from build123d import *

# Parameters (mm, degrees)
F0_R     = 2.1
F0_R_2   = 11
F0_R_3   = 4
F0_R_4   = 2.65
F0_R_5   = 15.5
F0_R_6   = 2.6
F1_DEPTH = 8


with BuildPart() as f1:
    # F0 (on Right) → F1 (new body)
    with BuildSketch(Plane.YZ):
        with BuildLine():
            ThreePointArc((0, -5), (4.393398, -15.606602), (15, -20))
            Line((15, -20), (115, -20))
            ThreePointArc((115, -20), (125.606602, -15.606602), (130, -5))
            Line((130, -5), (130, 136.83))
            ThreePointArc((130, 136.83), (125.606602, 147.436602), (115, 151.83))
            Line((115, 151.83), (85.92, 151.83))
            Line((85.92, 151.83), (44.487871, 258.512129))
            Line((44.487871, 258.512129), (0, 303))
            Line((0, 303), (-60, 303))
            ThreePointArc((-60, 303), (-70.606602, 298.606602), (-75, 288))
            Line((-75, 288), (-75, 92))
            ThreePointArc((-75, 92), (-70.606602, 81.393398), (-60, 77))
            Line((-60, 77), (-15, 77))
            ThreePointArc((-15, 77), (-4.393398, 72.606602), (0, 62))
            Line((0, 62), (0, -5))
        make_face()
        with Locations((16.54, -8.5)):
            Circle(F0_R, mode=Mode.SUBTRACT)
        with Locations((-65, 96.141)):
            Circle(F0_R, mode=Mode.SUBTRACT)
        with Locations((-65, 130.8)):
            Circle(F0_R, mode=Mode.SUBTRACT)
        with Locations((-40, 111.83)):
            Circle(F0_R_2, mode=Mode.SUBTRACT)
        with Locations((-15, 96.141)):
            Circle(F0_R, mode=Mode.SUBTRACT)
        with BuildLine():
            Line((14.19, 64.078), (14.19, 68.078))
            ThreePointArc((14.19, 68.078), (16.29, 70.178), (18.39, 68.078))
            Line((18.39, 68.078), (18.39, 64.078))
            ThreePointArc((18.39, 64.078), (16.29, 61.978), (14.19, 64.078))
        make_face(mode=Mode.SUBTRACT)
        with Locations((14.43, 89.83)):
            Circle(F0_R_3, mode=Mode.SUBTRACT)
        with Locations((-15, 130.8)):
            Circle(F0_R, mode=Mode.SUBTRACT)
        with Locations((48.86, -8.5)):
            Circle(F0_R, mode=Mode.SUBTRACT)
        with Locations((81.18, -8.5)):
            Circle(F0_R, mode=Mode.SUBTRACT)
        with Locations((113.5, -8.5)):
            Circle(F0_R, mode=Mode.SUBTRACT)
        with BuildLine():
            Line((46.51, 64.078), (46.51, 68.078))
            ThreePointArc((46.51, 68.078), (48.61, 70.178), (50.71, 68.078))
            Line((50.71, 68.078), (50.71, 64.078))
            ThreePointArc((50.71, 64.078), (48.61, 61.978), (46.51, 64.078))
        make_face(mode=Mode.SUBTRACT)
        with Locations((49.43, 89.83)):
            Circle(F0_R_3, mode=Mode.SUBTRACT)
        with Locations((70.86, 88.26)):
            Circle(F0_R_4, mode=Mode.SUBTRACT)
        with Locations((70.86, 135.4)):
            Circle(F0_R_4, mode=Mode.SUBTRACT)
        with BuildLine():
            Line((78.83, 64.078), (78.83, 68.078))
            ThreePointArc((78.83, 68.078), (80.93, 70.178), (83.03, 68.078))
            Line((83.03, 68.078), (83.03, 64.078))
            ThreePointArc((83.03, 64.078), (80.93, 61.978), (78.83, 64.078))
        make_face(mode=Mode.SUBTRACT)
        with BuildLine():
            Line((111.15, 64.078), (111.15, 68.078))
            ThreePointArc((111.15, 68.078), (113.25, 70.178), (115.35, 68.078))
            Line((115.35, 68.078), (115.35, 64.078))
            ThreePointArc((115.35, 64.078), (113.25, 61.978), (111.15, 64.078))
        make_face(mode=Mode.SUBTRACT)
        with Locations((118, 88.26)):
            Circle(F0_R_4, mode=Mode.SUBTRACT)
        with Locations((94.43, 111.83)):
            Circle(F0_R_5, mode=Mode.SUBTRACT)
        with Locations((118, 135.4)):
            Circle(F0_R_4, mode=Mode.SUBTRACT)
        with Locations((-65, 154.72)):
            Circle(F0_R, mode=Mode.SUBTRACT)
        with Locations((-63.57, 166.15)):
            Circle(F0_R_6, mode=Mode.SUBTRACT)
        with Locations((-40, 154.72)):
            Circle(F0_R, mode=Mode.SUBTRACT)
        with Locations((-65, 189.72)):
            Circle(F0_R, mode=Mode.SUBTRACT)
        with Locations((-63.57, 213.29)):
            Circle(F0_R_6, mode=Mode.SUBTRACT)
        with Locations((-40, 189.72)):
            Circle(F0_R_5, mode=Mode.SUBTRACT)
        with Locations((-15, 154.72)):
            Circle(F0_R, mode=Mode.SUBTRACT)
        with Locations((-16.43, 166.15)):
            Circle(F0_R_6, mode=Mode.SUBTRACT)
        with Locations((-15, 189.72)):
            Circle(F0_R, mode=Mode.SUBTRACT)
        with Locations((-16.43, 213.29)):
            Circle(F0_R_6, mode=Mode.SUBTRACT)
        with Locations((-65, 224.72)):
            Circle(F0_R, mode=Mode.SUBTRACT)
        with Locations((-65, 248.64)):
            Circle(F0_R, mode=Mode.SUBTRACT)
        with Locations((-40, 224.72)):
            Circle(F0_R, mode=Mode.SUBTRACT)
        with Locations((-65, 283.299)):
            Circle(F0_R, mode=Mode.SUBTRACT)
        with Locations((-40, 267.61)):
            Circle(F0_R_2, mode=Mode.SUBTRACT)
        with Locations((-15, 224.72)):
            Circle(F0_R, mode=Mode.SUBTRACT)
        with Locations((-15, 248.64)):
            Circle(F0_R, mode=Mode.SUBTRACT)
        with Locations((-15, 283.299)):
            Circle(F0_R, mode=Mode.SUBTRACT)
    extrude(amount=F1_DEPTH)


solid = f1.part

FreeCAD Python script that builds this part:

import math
import FreeCAD as App
import Part
import Sketcher

V = App.Vector
Q = App.Units.Quantity

doc = App.newDocument("Part")
body = doc.addObject("PartDesign::Body", "Body")

sketch1 = body.newObject("Sketcher::SketchObject", "Sketch")
sketch1.AttachmentSupport = (doc.getObject("YZ_Plane"), [""])
sketch1.MapMode = "FlatFace"
sketch1.addGeometry(Part.ArcOfCircle(Part.Circle(V(15, -5, 0), V(0, 0, 1), 15), math.radians(180), math.radians(270)), False)
sketch1.addGeometry(Part.LineSegment(V(15, -20, 0), V(115, -20, 0)), False)
sketch1.addGeometry(Part.ArcOfCircle(Part.Circle(V(115, -5, 0), V(0, 0, 1), 15), math.radians(-90), math.radians(0)), False)
sketch1.addGeometry(Part.LineSegment(V(130, -5, 0), V(130, 136.8, 0)), False)
sketch1.addGeometry(Part.ArcOfCircle(Part.Circle(V(115, 136.8, 0), V(0, 0, 1), 15), math.radians(0), math.radians(90)), False)
sketch1.addGeometry(Part.LineSegment(V(115, 151.8, 0), V(85.9, 151.8, 0)), False)
sketch1.addGeometry(Part.LineSegment(V(85.9, 151.8, 0), V(44.5, 258.5, 0)), False)
sketch1.addGeometry(Part.LineSegment(V(44.5, 258.5, 0), V(0, 303, 0)), False)
sketch1.addGeometry(Part.LineSegment(V(0, 303, 0), V(-60, 303, 0)), False)
sketch1.addGeometry(Part.ArcOfCircle(Part.Circle(V(-60, 288, 0), V(0, 0, 1), 15), math.radians(90), math.radians(180)), False)
sketch1.addGeometry(Part.LineSegment(V(-75, 288, 0), V(-75, 92, 0)), False)
sketch1.addGeometry(Part.ArcOfCircle(Part.Circle(V(-60, 92, 0), V(0, 0, 1), 15), math.radians(180), math.radians(270)), False)
sketch1.addGeometry(Part.LineSegment(V(-60, 77, 0), V(-15, 77, 0)), False)
sketch1.addGeometry(Part.ArcOfCircle(Part.Circle(V(-15, 62, 0), V(0, 0, 1), 15), math.radians(0), math.radians(90)), False)
sketch1.addGeometry(Part.LineSegment(V(0, 62, 0), V(0, -5, 0)), False)
sketch1.addGeometry(Part.Circle(V(16.5, -8.5, 0), V(0, 0, 1), 2.1), False)
sketch1.addGeometry(Part.Circle(V(-65, 96.1, 0), V(0, 0, 1), 2.1), False)
sketch1.addGeometry(Part.Circle(V(-65, 130.8, 0), V(0, 0, 1), 2.1), False)
sketch1.addGeometry(Part.Circle(V(-40, 111.8, 0), V(0, 0, 1), 11), False)
sketch1.addGeometry(Part.Circle(V(-15, 96.1, 0), V(0, 0, 1), 2.1), False)
sketch1.addGeometry(Part.ArcOfCircle(Part.Circle(V(16.3, 64.1, 0), V(0, 0, 1), 2.1), math.radians(180), math.radians(360)), False)
sketch1.addGeometry(Part.LineSegment(V(14.2, 64.1, 0), V(14.2, 68.1, 0)), False)
sketch1.addGeometry(Part.ArcOfCircle(Part.Circle(V(16.3, 68.1, 0), V(0, 0, 1), 2.1), math.radians(0), math.radians(180)), False)
sketch1.addGeometry(Part.LineSegment(V(18.4, 68.1, 0), V(18.4, 64.1, 0)), False)
sketch1.addGeometry(Part.Circle(V(14.4, 89.8, 0), V(0, 0, 1), 4), False)
sketch1.addGeometry(Part.Circle(V(-15, 130.8, 0), V(0, 0, 1), 2.1), False)
sketch1.addGeometry(Part.Circle(V(48.9, -8.5, 0), V(0, 0, 1), 2.1), False)
sketch1.addGeometry(Part.Circle(V(81.2, -8.5, 0), V(0, 0, 1), 2.1), False)
sketch1.addGeometry(Part.Circle(V(113.5, -8.5, 0), V(0, 0, 1), 2.1), False)
sketch1.addGeometry(Part.ArcOfCircle(Part.Circle(V(48.6, 64.1, 0), V(0, 0, 1), 2.1), math.radians(180), math.radians(360)), False)
sketch1.addGeometry(Part.LineSegment(V(46.5, 64.1, 0), V(46.5, 68.1, 0)), False)
sketch1.addGeometry(Part.ArcOfCircle(Part.Circle(V(48.6, 68.1, 0), V(0, 0, 1), 2.1), math.radians(0), math.radians(180)), False)
sketch1.addGeometry(Part.LineSegment(V(50.7, 68.1, 0), V(50.7, 64.1, 0)), False)
sketch1.addGeometry(Part.Circle(V(49.4, 89.8, 0), V(0, 0, 1), 4), False)
sketch1.addGeometry(Part.Circle(V(70.9, 88.3, 0), V(0, 0, 1), 2.6), False)
sketch1.addGeometry(Part.Circle(V(70.9, 135.4, 0), V(0, 0, 1), 2.6), False)
sketch1.addGeometry(Part.ArcOfCircle(Part.Circle(V(80.9, 64.1, 0), V(0, 0, 1), 2.1), math.radians(180), math.radians(360)), False)
sketch1.addGeometry(Part.LineSegment(V(78.8, 64.1, 0), V(78.8, 68.1, 0)), False)
sketch1.addGeometry(Part.ArcOfCircle(Part.Circle(V(80.9, 68.1, 0), V(0, 0, 1), 2.1), math.radians(0), math.radians(180)), False)
sketch1.addGeometry(Part.LineSegment(V(83, 68.1, 0), V(83, 64.1, 0)), False)
sketch1.addGeometry(Part.ArcOfCircle(Part.Circle(V(113.2, 64.1, 0), V(0, 0, 1), 2.1), math.radians(180), math.radians(360)), False)
sketch1.addGeometry(Part.LineSegment(V(111.2, 64.1, 0), V(111.2, 68.1, 0)), False)
sketch1.addGeometry(Part.ArcOfCircle(Part.Circle(V(113.2, 68.1, 0), V(0, 0, 1), 2.1), math.radians(0), math.radians(180)), False)
sketch1.addGeometry(Part.LineSegment(V(115.3, 68.1, 0), V(115.3, 64.1, 0)), False)
sketch1.addGeometry(Part.Circle(V(118, 88.3, 0), V(0, 0, 1), 2.6), False)
sketch1.addGeometry(Part.Circle(V(94.4, 111.8, 0), V(0, 0, 1), 15.5), False)
sketch1.addGeometry(Part.Circle(V(118, 135.4, 0), V(0, 0, 1), 2.6), False)
sketch1.addGeometry(Part.Circle(V(-65, 154.7, 0), V(0, 0, 1), 2.1), False)
sketch1.addGeometry(Part.Circle(V(-63.6, 166.2, 0), V(0, 0, 1), 2.6), False)
sketch1.addGeometry(Part.Circle(V(-40, 154.7, 0), V(0, 0, 1), 2.1), False)
sketch1.addGeometry(Part.Circle(V(-65, 189.7, 0), V(0, 0, 1), 2.1), False)
sketch1.addGeometry(Part.Circle(V(-40, 189.7, 0), V(0, 0, 1), 15.5), False)
sketch1.addGeometry(Part.Circle(V(-15, 154.7, 0), V(0, 0, 1), 2.1), False)
sketch1.addGeometry(Part.Circle(V(-16.4, 166.2, 0), V(0, 0, 1), 2.6), False)
sketch1.addGeometry(Part.Circle(V(-15, 189.7, 0), V(0, 0, 1), 2.1), False)
sketch1.addGeometry(Part.Circle(V(-63.6, 213.3, 0), V(0, 0, 1), 2.6), False)
sketch1.addGeometry(Part.Circle(V(-65, 224.7, 0), V(0, 0, 1), 2.1), False)
sketch1.addGeometry(Part.Circle(V(-40, 224.7, 0), V(0, 0, 1), 2.1), False)
sketch1.addGeometry(Part.Circle(V(-65, 248.6, 0), V(0, 0, 1), 2.1), False)
sketch1.addGeometry(Part.Circle(V(-65, 283.3, 0), V(0, 0, 1), 2.1), False)
sketch1.addGeometry(Part.Circle(V(-40, 267.6, 0), V(0, 0, 1), 11), False)
sketch1.addGeometry(Part.Circle(V(-16.4, 213.3, 0), V(0, 0, 1), 2.6), False)
sketch1.addGeometry(Part.Circle(V(-15, 224.7, 0), V(0, 0, 1), 2.1), False)
sketch1.addGeometry(Part.Circle(V(-15, 248.6, 0), V(0, 0, 1), 2.1), False)
sketch1.addGeometry(Part.Circle(V(-15, 283.3, 0), V(0, 0, 1), 2.1), False)
sketch1.addConstraint(Sketcher.Constraint("Tangent", 0, 2, 1, 1))
sketch1.addConstraint(Sketcher.Constraint("Tangent", 1, 2, 2, 1))
sketch1.addConstraint(Sketcher.Constraint("Tangent", 2, 2, 3, 1))
sketch1.addConstraint(Sketcher.Constraint("Tangent", 3, 2, 4, 1))
sketch1.addConstraint(Sketcher.Constraint("Tangent", 4, 2, 5, 1))
sketch1.addConstraint(Sketcher.Constraint("Coincident", 5, 2, 6, 1))
sketch1.addConstraint(Sketcher.Constraint("Coincident", 6, 2, 7, 1))
sketch1.addConstraint(Sketcher.Constraint("Coincident", 7, 2, 8, 1))
sketch1.addConstraint(Sketcher.Constraint("Tangent", 8, 2, 9, 1))
sketch1.addConstraint(Sketcher.Constraint("Tangent", 9, 2, 10, 1))
sketch1.addConstraint(Sketcher.Constraint("Tangent", 10, 2, 11, 1))
sketch1.addConstraint(Sketcher.Constraint("Tangent", 11, 2, 12, 1))
sketch1.addConstraint(Sketcher.Constraint("Tangent", 12, 2, 13, 2))
sketch1.addConstraint(Sketcher.Constraint("Tangent", 13, 1, 14, 1))
sketch1.addConstraint(Sketcher.Constraint("Tangent", 14, 2, 0, 1))
sketch1.addConstraint(Sketcher.Constraint("Tangent", 20, 1, 21, 1))
sketch1.addConstraint(Sketcher.Constraint("Tangent", 21, 2, 22, 2))
sketch1.addConstraint(Sketcher.Constraint("Tangent", 22, 1, 23, 1))
sketch1.addConstraint(Sketcher.Constraint("Tangent", 23, 2, 20, 2))
sketch1.addConstraint(Sketcher.Constraint("Tangent", 29, 1, 30, 1))
sketch1.addConstraint(Sketcher.Constraint("Tangent", 30, 2, 31, 2))
sketch1.addConstraint(Sketcher.Constraint("Tangent", 31, 1, 32, 1))
sketch1.addConstraint(Sketcher.Constraint("Tangent", 32, 2, 29, 2))
sketch1.addConstraint(Sketcher.Constraint("Tangent", 36, 1, 37, 1))
sketch1.addConstraint(Sketcher.Constraint("Tangent", 37, 2, 38, 2))
sketch1.addConstraint(Sketcher.Constraint("Tangent", 38, 1, 39, 1))
sketch1.addConstraint(Sketcher.Constraint("Tangent", 39, 2, 36, 2))
sketch1.addConstraint(Sketcher.Constraint("Tangent", 40, 1, 41, 1))
sketch1.addConstraint(Sketcher.Constraint("Tangent", 41, 2, 42, 2))
sketch1.addConstraint(Sketcher.Constraint("Tangent", 42, 1, 43, 1))
sketch1.addConstraint(Sketcher.Constraint("Tangent", 43, 2, 40, 2))
sketch1.addConstraint(Sketcher.Constraint("Horizontal", 1))
sketch1.addConstraint(Sketcher.Constraint("Vertical", 3))
sketch1.addConstraint(Sketcher.Constraint("Horizontal", 5))
sketch1.addConstraint(Sketcher.Constraint("Horizontal", 8))
sketch1.addConstraint(Sketcher.Constraint("Vertical", 10))
sketch1.addConstraint(Sketcher.Constraint("Horizontal", 12))
sketch1.addConstraint(Sketcher.Constraint("Vertical", 14))
sketch1.addConstraint(Sketcher.Constraint("Vertical", 21))
sketch1.addConstraint(Sketcher.Constraint("Vertical", 23))
sketch1.addConstraint(Sketcher.Constraint("Vertical", 30))
sketch1.addConstraint(Sketcher.Constraint("Vertical", 32))
sketch1.addConstraint(Sketcher.Constraint("Vertical", 37))
sketch1.addConstraint(Sketcher.Constraint("Vertical", 39))
sketch1.addConstraint(Sketcher.Constraint("Vertical", 41))
sketch1.addConstraint(Sketcher.Constraint("Vertical", 43))
sketch1.addConstraint(Sketcher.Constraint("Equal", 0, 2))
sketch1.addConstraint(Sketcher.Constraint("Equal", 2, 4))
sketch1.addConstraint(Sketcher.Constraint("Equal", 4, 9))
sketch1.addConstraint(Sketcher.Constraint("Equal", 9, 11))
sketch1.addConstraint(Sketcher.Constraint("Equal", 11, 13))
sketch1.addConstraint(Sketcher.Constraint("Equal", 15, 16))
sketch1.addConstraint(Sketcher.Constraint("Equal", 16, 17))
sketch1.addConstraint(Sketcher.Constraint("Equal", 17, 19))
sketch1.addConstraint(Sketcher.Constraint("Equal", 19, 20))
sketch1.addConstraint(Sketcher.Constraint("Equal", 22, 25))
sketch1.addConstraint(Sketcher.Constraint("Equal", 25, 26))
sketch1.addConstraint(Sketcher.Constraint("Equal", 26, 27))
sketch1.addConstraint(Sketcher.Constraint("Equal", 27, 28))
sketch1.addConstraint(Sketcher.Constraint("Equal", 28, 29))
sketch1.addConstraint(Sketcher.Constraint("Equal", 24, 33))
sketch1.addConstraint(Sketcher.Constraint("Equal", 34, 35))
sketch1.addConstraint(Sketcher.Constraint("Equal", 31, 36))
sketch1.addConstraint(Sketcher.Constraint("Equal", 38, 40))
sketch1.addConstraint(Sketcher.Constraint("Equal", 35, 44))
sketch1.addConstraint(Sketcher.Constraint("Equal", 44, 46))
sketch1.addConstraint(Sketcher.Constraint("Equal", 42, 47))
sketch1.addConstraint(Sketcher.Constraint("Equal", 47, 49))
sketch1.addConstraint(Sketcher.Constraint("Equal", 49, 50))
sketch1.addConstraint(Sketcher.Constraint("Equal", 45, 51))
sketch1.addConstraint(Sketcher.Constraint("Equal", 50, 52))
sketch1.addConstraint(Sketcher.Constraint("Equal", 48, 53))
sketch1.addConstraint(Sketcher.Constraint("Equal", 52, 54))
sketch1.addConstraint(Sketcher.Constraint("Equal", 53, 55))
sketch1.addConstraint(Sketcher.Constraint("Equal", 54, 56))
sketch1.addConstraint(Sketcher.Constraint("Equal", 56, 57))
sketch1.addConstraint(Sketcher.Constraint("Equal", 57, 58))
sketch1.addConstraint(Sketcher.Constraint("Equal", 58, 59))
sketch1.addConstraint(Sketcher.Constraint("Equal", 18, 60))
sketch1.addConstraint(Sketcher.Constraint("Equal", 55, 61))
sketch1.addConstraint(Sketcher.Constraint("Equal", 59, 62))
sketch1.addConstraint(Sketcher.Constraint("Equal", 62, 63))
sketch1.addConstraint(Sketcher.Constraint("Equal", 63, 64))
sketch1.addConstraint(Sketcher.Constraint("PointOnObject", 7, 2, -2))
sketch1.addConstraint(Sketcher.Constraint("PointOnObject", 13, 1, -2))
sketch1.addConstraint(Sketcher.Constraint("Horizontal", 16, 3, 19, 3))
sketch1.addConstraint(Sketcher.Constraint("Horizontal", 17, 3, 25, 3))
sketch1.addConstraint(Sketcher.Constraint("Horizontal", 15, 3, 26, 3))
sketch1.addConstraint(Sketcher.Constraint("Horizontal", 26, 3, 27, 3))
sketch1.addConstraint(Sketcher.Constraint("Horizontal", 27, 3, 28, 3))
sketch1.addConstraint(Sketcher.Constraint("Horizontal", 20, 3, 29, 3))
sketch1.addConstraint(Sketcher.Constraint("Horizontal", 22, 3, 31, 3))
sketch1.addConstraint(Sketcher.Constraint("Horizontal", 24, 3, 33, 3))
sketch1.addConstraint(Sketcher.Constraint("Horizontal", 29, 3, 36, 3))
sketch1.addConstraint(Sketcher.Constraint("Horizontal", 31, 3, 38, 3))
sketch1.addConstraint(Sketcher.Constraint("Horizontal", 36, 3, 40, 3))
sketch1.addConstraint(Sketcher.Constraint("Horizontal", 38, 3, 42, 3))
sketch1.addConstraint(Sketcher.Constraint("Horizontal", 34, 3, 44, 3))
sketch1.addConstraint(Sketcher.Constraint("Horizontal", 18, 3, 45, 3))
sketch1.addConstraint(Sketcher.Constraint("Horizontal", 35, 3, 46, 3))
sketch1.addConstraint(Sketcher.Constraint("Horizontal", 47, 3, 49, 3))
sketch1.addConstraint(Sketcher.Constraint("Horizontal", 50, 3, 51, 3))
sketch1.addConstraint(Sketcher.Constraint("Horizontal", 49, 3, 52, 3))
sketch1.addConstraint(Sketcher.Constraint("Horizontal", 48, 3, 53, 3))
sketch1.addConstraint(Sketcher.Constraint("Horizontal", 51, 3, 54, 3))
sketch1.addConstraint(Sketcher.Constraint("Horizontal", 56, 3, 57, 3))
sketch1.addConstraint(Sketcher.Constraint("Horizontal", 55, 3, 61, 3))
sketch1.addConstraint(Sketcher.Constraint("Horizontal", 57, 3, 62, 3))
sketch1.addConstraint(Sketcher.Constraint("Horizontal", 58, 3, 63, 3))
sketch1.addConstraint(Sketcher.Constraint("Horizontal", 59, 3, 64, 3))
sketch1.addConstraint(Sketcher.Constraint("Vertical", 16, 3, 17, 3))
sketch1.addConstraint(Sketcher.Constraint("Vertical", 13, 3, 19, 3))
sketch1.addConstraint(Sketcher.Constraint("Vertical", 19, 3, 25, 3))
sketch1.addConstraint(Sketcher.Constraint("Vertical", 34, 3, 35, 3))
sketch1.addConstraint(Sketcher.Constraint("Vertical", 44, 3, 46, 3))
sketch1.addConstraint(Sketcher.Constraint("Vertical", 17, 3, 47, 3))
sketch1.addConstraint(Sketcher.Constraint("Vertical", 18, 3, 49, 3))
sketch1.addConstraint(Sketcher.Constraint("Vertical", 47, 3, 50, 3))
sketch1.addConstraint(Sketcher.Constraint("Vertical", 49, 3, 51, 3))
sketch1.addConstraint(Sketcher.Constraint("Vertical", 25, 3, 52, 3))
sketch1.addConstraint(Sketcher.Constraint("Vertical", 52, 3, 54, 3))
sketch1.addConstraint(Sketcher.Constraint("Vertical", 48, 3, 55, 3))
sketch1.addConstraint(Sketcher.Constraint("Vertical", 50, 3, 56, 3))
sketch1.addConstraint(Sketcher.Constraint("Vertical", 51, 3, 57, 3))
sketch1.addConstraint(Sketcher.Constraint("Vertical", 56, 3, 58, 3))
sketch1.addConstraint(Sketcher.Constraint("Vertical", 58, 3, 59, 3))
sketch1.addConstraint(Sketcher.Constraint("Vertical", 57, 3, 60, 3))
sketch1.addConstraint(Sketcher.Constraint("Vertical", 53, 3, 61, 3))
sketch1.addConstraint(Sketcher.Constraint("Vertical", 54, 3, 62, 3))
sketch1.addConstraint(Sketcher.Constraint("Vertical", 62, 3, 63, 3))
sketch1.addConstraint(Sketcher.Constraint("Vertical", 63, 3, 64, 3))
sketch1.addConstraint(Sketcher.Constraint("Diameter", 18, Q("22 mm")))
sketch1.addConstraint(Sketcher.Constraint("Diameter", 24, Q("8 mm")))
sketch1.addConstraint(Sketcher.Constraint("Diameter", 45, Q("31 mm")))
sketch1.addConstraint(Sketcher.Constraint("Radius", 0, Q("14.999999 mm")))
sketch1.addConstraint(Sketcher.Constraint("Diameter", 15, Q("4.2 mm")))
sketch1.addConstraint(Sketcher.Constraint("Diameter", 34, Q("5.3 mm")))
sketch1.addConstraint(Sketcher.Constraint("Diameter", 48, Q("5.2 mm")))
sketch1.addConstraint(Sketcher.Constraint("DistanceX", 1, 1, 1, 2, Q("100 mm")))
sketch1.addConstraint(Sketcher.Constraint("DistanceX", 8, 2, 8, 1, Q("60 mm")))
sketch1.addConstraint(Sketcher.Constraint("DistanceY", 10, 2, 10, 1, Q("196 mm")))
sketch1.addConstraint(Sketcher.Constraint("DistanceY", 14, 2, 14, 1, Q("67 mm")))
sketch1.addConstraint(Sketcher.Constraint("DistanceY", 21, 1, 21, 2, Q("4 mm")))
sketch1.addConstraint(Sketcher.Constraint("Angle", 7, Q("135 deg")))
sketch1.addConstraint(Sketcher.Constraint("DistanceY", 0, 3, -1, 1, Q("5.000001 mm")))
sketch1.addConstraint(Sketcher.Constraint("DistanceX", 16, 3, -1, 1, Q("65 mm")))
sketch1.addConstraint(Sketcher.Constraint("DistanceX", 18, 3, -1, 1, Q("40 mm")))
sketch1.addConstraint(Sketcher.Constraint("DistanceX", -1, 1, 44, 3, Q("118 mm")))
sketch1.addConstraint(Sketcher.Constraint("DistanceX", 5, 2, 5, 1, Q("29.08 mm")))
sketch1.addConstraint(Sketcher.Constraint("DistanceY", 3, 1, 3, 2, Q("141.83 mm")))
sketch1.addConstraint(Sketcher.Constraint("DistanceY", 15, 3, -1, 1, Q("8.5 mm")))
sketch1.addConstraint(Sketcher.Constraint("DistanceY", -1, 1, 17, 3, Q("130.8 mm")))
sketch1.addConstraint(Sketcher.Constraint("DistanceX", -1, 1, 28, 3, Q("113.5 mm")))
sketch1.addConstraint(Sketcher.Constraint("DistanceY", -1, 1, 35, 3, Q("135.4 mm")))
sketch1.addConstraint(Sketcher.Constraint("DistanceX", -1, 1, 15, 3, Q("16.54 mm")))
sketch1.addConstraint(Sketcher.Constraint("DistanceY", -1, 1, 18, 3, Q("111.83 mm")))
sketch1.addConstraint(Sketcher.Constraint("DistanceX", -1, 1, 20, 3, Q("16.29 mm")))
sketch1.addConstraint(Sketcher.Constraint("DistanceX", -1, 1, 24, 3, Q("14.43 mm")))
sketch1.addConstraint(Sketcher.Constraint("DistanceY", -1, 1, 24, 3, Q("89.83 mm")))
sketch1.addConstraint(Sketcher.Constraint("DistanceX", -1, 1, 26, 3, Q("48.86 mm")))
sketch1.addConstraint(Sketcher.Constraint("DistanceX", -1, 1, 27, 3, Q("81.18 mm")))
sketch1.addConstraint(Sketcher.Constraint("DistanceX", -1, 1, 29, 3, Q("48.61 mm")))
sketch1.addConstraint(Sketcher.Constraint("DistanceX", -1, 1, 33, 3, Q("49.43 mm")))
sketch1.addConstraint(Sketcher.Constraint("DistanceX", -1, 1, 34, 3, Q("70.86 mm")))
sketch1.addConstraint(Sketcher.Constraint("DistanceY", -1, 1, 34, 3, Q("88.26 mm")))
sketch1.addConstraint(Sketcher.Constraint("DistanceX", -1, 1, 36, 3, Q("80.93 mm")))
sketch1.addConstraint(Sketcher.Constraint("DistanceX", -1, 1, 40, 3, Q("113.25 mm")))
sketch1.addConstraint(Sketcher.Constraint("DistanceX", -1, 1, 45, 3, Q("94.43 mm")))
sketch1.addConstraint(Sketcher.Constraint("DistanceY", -1, 1, 47, 3, Q("154.72 mm")))
sketch1.addConstraint(Sketcher.Constraint("DistanceX", 48, 3, -1, 1, Q("63.57 mm")))
sketch1.addConstraint(Sketcher.Constraint("DistanceY", -1, 1, 48, 3, Q("166.15 mm")))
sketch1.addConstraint(Sketcher.Constraint("DistanceY", -1, 1, 50, 3, Q("189.72 mm")))
sketch1.addConstraint(Sketcher.Constraint("DistanceX", 53, 3, -1, 1, Q("16.43 mm")))
sketch1.addConstraint(Sketcher.Constraint("DistanceY", -1, 1, 55, 3, Q("213.29 mm")))
sketch1.addConstraint(Sketcher.Constraint("DistanceY", -1, 1, 56, 3, Q("224.72 mm")))
sketch1.addConstraint(Sketcher.Constraint("DistanceY", -1, 1, 58, 3, Q("248.64 mm")))
sketch1.addConstraint(Sketcher.Constraint("DistanceY", -1, 1, 60, 3, Q("267.61 mm")))
sketch1.addConstraint(Sketcher.Constraint("DistanceY", -1, 1, 16, 3, Q("96.141 mm")))
sketch1.addConstraint(Sketcher.Constraint("DistanceY", -1, 1, 20, 3, Q("64.078 mm")))
sketch1.addConstraint(Sketcher.Constraint("DistanceY", -1, 1, 59, 3, Q("283.299 mm")))
sketch1.addConstraint(Sketcher.Constraint("Distance", 7, Q("62.915351 mm")))
pad1 = body.newObject("PartDesign::Pad", "Pad")
pad1.Profile = sketch1
pad1.Length = 8

doc.recompute()
